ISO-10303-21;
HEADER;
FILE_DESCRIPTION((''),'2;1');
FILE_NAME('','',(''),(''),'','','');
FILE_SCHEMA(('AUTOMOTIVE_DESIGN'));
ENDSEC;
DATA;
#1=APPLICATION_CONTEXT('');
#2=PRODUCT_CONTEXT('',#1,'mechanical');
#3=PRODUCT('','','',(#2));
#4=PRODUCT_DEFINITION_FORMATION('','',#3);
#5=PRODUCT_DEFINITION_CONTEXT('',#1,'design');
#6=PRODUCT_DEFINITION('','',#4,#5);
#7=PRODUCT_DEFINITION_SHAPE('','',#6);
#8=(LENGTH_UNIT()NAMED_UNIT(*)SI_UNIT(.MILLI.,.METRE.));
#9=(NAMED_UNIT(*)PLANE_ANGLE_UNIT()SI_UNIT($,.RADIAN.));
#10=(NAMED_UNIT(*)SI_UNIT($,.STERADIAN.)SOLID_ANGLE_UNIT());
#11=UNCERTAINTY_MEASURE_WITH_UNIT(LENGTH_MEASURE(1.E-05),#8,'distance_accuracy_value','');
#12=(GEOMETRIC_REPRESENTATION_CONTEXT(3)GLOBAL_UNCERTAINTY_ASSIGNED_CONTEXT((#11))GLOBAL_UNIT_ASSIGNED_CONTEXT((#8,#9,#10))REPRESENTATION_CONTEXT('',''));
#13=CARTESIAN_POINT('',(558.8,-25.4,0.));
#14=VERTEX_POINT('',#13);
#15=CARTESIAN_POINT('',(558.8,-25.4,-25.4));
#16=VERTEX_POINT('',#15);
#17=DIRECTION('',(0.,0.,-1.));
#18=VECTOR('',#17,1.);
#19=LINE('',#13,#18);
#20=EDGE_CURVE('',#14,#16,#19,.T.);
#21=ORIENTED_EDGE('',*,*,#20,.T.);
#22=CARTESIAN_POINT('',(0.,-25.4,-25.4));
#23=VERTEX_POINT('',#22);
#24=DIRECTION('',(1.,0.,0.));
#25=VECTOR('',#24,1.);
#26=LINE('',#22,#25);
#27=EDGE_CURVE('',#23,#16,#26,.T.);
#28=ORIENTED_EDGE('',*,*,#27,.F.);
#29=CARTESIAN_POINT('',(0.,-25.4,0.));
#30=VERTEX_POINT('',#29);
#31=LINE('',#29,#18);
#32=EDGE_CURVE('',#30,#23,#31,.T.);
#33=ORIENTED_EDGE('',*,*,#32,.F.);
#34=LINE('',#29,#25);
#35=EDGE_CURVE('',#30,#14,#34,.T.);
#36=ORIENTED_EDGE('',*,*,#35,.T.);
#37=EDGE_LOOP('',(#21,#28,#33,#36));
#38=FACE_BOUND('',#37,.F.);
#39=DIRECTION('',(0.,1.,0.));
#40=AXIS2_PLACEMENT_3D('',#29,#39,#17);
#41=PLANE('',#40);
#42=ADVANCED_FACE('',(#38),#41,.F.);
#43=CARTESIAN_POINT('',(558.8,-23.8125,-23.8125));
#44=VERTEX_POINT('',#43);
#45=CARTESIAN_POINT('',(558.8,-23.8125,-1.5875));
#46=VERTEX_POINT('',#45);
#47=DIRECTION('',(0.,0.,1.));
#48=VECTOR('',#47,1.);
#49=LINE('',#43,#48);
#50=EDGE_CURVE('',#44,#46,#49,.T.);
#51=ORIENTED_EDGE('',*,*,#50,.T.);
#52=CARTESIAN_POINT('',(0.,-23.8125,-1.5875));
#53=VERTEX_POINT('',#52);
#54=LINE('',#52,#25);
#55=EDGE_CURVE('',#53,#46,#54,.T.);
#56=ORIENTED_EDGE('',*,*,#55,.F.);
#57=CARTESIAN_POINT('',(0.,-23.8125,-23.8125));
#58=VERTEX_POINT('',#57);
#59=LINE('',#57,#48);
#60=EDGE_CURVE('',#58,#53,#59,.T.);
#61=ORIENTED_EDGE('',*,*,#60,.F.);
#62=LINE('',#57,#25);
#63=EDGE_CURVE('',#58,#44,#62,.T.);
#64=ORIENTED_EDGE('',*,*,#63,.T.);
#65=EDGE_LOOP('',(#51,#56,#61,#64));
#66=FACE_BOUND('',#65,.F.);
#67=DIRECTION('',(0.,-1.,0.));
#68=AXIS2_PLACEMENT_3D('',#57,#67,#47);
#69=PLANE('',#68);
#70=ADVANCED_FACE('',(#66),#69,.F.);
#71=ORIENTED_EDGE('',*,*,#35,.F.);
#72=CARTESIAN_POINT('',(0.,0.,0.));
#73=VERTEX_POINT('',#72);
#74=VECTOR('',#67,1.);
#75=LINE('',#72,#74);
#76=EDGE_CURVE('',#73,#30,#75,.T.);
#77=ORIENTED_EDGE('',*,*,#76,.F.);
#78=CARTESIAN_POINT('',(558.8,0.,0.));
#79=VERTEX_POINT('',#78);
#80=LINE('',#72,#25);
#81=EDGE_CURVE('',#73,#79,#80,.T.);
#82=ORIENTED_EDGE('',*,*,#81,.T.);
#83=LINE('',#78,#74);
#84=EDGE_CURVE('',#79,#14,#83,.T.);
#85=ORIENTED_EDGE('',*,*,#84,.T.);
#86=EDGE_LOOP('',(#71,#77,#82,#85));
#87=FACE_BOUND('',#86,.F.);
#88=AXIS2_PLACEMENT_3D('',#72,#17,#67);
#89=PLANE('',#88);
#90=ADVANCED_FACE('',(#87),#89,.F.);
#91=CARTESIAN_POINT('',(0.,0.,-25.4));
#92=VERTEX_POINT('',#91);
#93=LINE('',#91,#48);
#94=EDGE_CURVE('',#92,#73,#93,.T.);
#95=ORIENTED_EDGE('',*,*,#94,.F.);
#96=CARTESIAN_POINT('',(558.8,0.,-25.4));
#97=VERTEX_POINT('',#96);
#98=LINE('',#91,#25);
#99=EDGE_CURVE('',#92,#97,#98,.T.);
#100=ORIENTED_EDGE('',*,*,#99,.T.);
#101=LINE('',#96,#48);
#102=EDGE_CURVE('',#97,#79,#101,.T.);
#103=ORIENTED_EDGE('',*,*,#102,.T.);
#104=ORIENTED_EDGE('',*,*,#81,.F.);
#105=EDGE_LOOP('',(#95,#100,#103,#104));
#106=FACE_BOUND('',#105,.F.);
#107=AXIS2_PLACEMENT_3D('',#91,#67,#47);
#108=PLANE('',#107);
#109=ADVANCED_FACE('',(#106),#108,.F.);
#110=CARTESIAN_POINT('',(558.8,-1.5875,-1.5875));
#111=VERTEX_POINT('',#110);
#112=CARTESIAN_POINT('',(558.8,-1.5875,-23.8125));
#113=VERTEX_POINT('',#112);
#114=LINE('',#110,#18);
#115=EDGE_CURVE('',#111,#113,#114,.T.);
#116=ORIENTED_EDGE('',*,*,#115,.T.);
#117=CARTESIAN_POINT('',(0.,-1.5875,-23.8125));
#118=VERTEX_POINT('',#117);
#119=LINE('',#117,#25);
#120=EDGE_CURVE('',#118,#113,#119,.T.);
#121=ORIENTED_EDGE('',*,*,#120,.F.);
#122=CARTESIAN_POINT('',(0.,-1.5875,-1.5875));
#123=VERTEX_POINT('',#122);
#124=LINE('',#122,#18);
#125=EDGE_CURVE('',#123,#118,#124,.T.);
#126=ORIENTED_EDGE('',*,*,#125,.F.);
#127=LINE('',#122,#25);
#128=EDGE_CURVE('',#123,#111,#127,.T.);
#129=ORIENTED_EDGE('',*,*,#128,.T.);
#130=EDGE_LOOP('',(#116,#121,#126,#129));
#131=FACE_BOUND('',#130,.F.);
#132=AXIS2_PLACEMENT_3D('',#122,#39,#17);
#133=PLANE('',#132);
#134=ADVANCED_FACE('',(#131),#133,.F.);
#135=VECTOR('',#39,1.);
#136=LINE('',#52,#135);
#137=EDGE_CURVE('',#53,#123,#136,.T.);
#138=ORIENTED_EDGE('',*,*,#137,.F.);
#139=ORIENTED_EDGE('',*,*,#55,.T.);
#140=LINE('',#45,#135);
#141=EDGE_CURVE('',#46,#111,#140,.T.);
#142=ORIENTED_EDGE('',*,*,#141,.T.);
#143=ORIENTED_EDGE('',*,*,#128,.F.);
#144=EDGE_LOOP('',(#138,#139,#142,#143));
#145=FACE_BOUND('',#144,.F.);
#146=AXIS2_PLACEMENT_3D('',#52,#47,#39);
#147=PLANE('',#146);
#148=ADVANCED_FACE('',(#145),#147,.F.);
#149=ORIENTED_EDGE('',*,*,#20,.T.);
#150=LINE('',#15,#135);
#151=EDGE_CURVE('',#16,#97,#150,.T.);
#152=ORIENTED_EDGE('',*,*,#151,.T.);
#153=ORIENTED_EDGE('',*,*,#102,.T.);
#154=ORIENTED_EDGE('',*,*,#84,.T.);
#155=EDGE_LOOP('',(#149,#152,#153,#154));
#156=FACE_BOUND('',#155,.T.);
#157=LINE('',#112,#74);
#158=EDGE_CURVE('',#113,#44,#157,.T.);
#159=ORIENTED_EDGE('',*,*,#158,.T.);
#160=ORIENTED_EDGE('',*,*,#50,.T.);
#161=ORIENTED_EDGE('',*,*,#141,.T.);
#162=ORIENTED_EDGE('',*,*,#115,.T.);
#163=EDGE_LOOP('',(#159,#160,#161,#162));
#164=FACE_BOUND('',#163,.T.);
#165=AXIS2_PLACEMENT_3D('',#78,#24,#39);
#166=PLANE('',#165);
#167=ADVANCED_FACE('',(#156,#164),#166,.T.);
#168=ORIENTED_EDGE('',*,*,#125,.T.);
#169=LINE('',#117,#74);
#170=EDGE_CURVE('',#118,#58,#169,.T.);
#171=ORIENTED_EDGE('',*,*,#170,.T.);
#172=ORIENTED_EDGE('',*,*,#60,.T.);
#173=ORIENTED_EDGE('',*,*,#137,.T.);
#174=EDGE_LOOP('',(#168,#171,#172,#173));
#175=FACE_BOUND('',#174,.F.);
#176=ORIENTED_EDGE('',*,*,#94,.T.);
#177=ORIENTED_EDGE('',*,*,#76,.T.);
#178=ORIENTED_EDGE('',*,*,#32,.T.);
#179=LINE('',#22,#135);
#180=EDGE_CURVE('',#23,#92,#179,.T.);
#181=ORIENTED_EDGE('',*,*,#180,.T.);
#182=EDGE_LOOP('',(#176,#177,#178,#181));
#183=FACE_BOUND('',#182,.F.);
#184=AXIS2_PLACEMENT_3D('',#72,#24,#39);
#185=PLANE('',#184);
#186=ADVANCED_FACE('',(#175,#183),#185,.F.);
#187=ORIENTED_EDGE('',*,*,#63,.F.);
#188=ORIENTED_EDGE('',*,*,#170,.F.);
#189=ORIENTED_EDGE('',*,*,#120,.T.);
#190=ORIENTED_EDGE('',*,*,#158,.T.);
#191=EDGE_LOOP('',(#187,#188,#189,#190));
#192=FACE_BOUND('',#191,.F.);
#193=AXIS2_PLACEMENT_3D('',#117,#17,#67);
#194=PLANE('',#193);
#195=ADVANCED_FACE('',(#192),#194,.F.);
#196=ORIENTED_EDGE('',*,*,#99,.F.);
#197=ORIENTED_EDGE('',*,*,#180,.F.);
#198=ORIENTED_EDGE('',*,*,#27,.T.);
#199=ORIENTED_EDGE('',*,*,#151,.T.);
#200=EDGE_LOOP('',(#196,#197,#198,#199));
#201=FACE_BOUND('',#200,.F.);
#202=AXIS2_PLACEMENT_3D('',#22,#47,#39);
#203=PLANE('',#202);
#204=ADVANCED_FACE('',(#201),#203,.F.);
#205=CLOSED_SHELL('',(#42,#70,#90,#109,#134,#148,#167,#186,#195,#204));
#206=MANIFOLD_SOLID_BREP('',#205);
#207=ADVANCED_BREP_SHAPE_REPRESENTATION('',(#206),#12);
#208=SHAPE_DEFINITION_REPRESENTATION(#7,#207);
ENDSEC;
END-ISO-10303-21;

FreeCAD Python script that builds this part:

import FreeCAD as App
import Part
import Sketcher
Q = App.Units.Quantity


def add_polygon(sketch, points):
    """Adds a closed chain of lines whose ends are joined by coincident constraints."""
    first, n = sketch.GeometryCount, len(points)
    for a, b in zip(points, points[1:] + points[:1]):
        sketch.addGeometry(Part.LineSegment(App.Vector(*a, 0), App.Vector(*b, 0)), False)
    for i in range(n):
        sketch.addConstraint(Sketcher.Constraint("Coincident", first + i, 2, first + (i + 1) % n, 1))

doc = App.newDocument("Part")
body = doc.addObject("PartDesign::Body", "Body")

sketch1 = body.newObject("Sketcher::SketchObject", "Sketch")
sketch1.AttachmentSupport = (doc.getObject("YZ_Plane"), [""])
sketch1.MapMode = "FlatFace"
add_polygon(sketch1, [(0, -25.4), (0, 0), (-25.4, 0), (-25.4, -25.4)])
add_polygon(sketch1, [(-1.5875, -1.5875), (-1.5875, -23.8125), (-23.8125, -23.8125), (-23.8125, -1.5875)])
sketch1.addConstraint([
    Sketcher.Constraint("Vertical", 0),
    Sketcher.Constraint("Horizontal", 1),
    Sketcher.Constraint("Vertical", 2),
    Sketcher.Constraint("Horizontal", 3),
    Sketcher.Constraint("Vertical", 4),
    Sketcher.Constraint("Horizontal", 5),
    Sketcher.Constraint("Vertical", 6),
    Sketcher.Constraint("Horizontal", 7),
    Sketcher.Constraint("Coincident", 0, 2, -1, 1),
    Sketcher.Constraint("Equal", 3, 0),
    Sketcher.Constraint("Equal", 7, 4),
    Sketcher.Constraint("DistanceX", 1, 2, 1, 1, Q("1 in")),
    Sketcher.Constraint("DistanceX", 4, 2, -1, 1, Q("0.0625 in")),
    Sketcher.Constraint("DistanceY", 6, 2, -1, 1, Q("0.0625 in")),
    Sketcher.Constraint("DistanceY", 3, 2, 4, 2, Q("0.0625 in")),
])
pad1 = body.newObject("PartDesign::Pad", "Pad")
pad1.Profile = sketch1
pad1.Length = Q("22 in")

doc.recompute()
